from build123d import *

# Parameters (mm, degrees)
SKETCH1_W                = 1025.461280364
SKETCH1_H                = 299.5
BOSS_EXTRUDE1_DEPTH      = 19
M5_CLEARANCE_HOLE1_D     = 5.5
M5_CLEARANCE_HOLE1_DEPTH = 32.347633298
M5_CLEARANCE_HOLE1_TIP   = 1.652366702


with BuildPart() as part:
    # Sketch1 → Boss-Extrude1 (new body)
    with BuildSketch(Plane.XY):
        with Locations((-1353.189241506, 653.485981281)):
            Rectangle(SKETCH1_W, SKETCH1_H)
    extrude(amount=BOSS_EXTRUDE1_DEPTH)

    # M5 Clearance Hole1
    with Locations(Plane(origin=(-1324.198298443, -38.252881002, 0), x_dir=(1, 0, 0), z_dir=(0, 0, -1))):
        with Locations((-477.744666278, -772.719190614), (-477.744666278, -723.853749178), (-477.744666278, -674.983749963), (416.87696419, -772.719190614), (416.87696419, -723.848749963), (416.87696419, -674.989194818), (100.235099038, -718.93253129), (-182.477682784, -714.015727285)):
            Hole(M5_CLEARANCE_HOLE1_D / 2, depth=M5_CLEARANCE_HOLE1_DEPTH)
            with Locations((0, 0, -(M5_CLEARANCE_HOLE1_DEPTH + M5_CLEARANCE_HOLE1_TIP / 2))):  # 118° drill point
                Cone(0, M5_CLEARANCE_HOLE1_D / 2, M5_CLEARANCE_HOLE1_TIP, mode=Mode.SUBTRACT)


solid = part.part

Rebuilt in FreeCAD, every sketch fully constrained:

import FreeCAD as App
import Part
import Sketcher
from FreeCAD import Vector


def add_polygon(sketch, points):
    """Adds a closed chain of lines whose ends are joined by coincident constraints."""
    first, n = sketch.GeometryCount, len(points)
    for a, b in zip(points, points[1:] + points[:1]):
        sketch.addGeometry(Part.LineSegment(App.Vector(*a, 0), App.Vector(*b, 0)), False)
    for i in range(n):
        sketch.addConstraint(Sketcher.Constraint("Coincident", first + i, 2, first + (i + 1) % n, 1))

doc = App.newDocument("Part")
body = doc.addObject("PartDesign::Body", "Body")

sketch1 = body.newObject("Sketcher::SketchObject", "Sketch")
sketch1.AttachmentSupport = (doc.getObject("XY_Plane"), [""])
sketch1.MapMode = "FlatFace"
add_polygon(sketch1, [(-1866, 803), (-1866, 504), (-840, 504), (-840, 803)])
sketch1.addConstraint(Sketcher.Constraint("Vertical", 0))
sketch1.addConstraint(Sketcher.Constraint("Horizontal", 1))
sketch1.addConstraint(Sketcher.Constraint("Vertical", 2))
sketch1.addConstraint(Sketcher.Constraint("Horizontal", 3))
sketch1.addConstraint(Sketcher.Constraint("DistanceY", 0, 2, 0, 1, 299.5))
sketch1.addConstraint(Sketcher.Constraint("DistanceX", 1, 1, 1, 2, 1025.46128))
sketch1.addConstraint(Sketcher.Constraint("DistanceX", 1, 2, -1, 1, 840.458601))
sketch1.addConstraint(Sketcher.Constraint("DistanceY", -1, 1, 0, 2, 503.735981))
pad1 = body.newObject("PartDesign::Pad", "Pad")
pad1.Profile = sketch1
pad1.Length = 19

sketch2 = body.newObject("Sketcher::SketchObject", "Sketch001")
sketch2.AttachmentSupport = (doc.getObject("XY_Plane"), [""])
sketch2.MapMode = "FlatFace"
sketch2.addGeometry(Part.Circle(Vector(-1801.9, 734.5, 0), Vector(0, 0, 1), 2.8), False)
sketch2.addGeometry(Part.Circle(Vector(-1801.9, 685.6, 0), Vector(0, 0, 1), 2.8), False)
sketch2.addGeometry(Part.Circle(Vector(-1801.9, 636.7, 0), Vector(0, 0, 1), 2.8), False)
sketch2.addGeometry(Part.Circle(Vector(-907.3, 734.5, 0), Vector(0, 0, 1), 2.8), False)
sketch2.addGeometry(Part.Circle(Vector(-907.3, 685.6, 0), Vector(0, 0, 1), 2.8), False)
sketch2.addGeometry(Part.Circle(Vector(-907.3, 636.7, 0), Vector(0, 0, 1), 2.8), False)
sketch2.addGeometry(Part.Circle(Vector(-1224, 680.7, 0), Vector(0, 0, 1), 2.8), False)
sketch2.addGeometry(Part.Circle(Vector(-1506.7, 675.8, 0), Vector(0, 0, 1), 2.8), False)
sketch2.addConstraint(Sketcher.Constraint("Equal", 0, 1))
sketch2.addConstraint(Sketcher.Constraint("Equal", 1, 2))
sketch2.addConstraint(Sketcher.Constraint("Equal", 2, 3))
sketch2.addConstraint(Sketcher.Constraint("Equal", 3, 4))
sketch2.addConstraint(Sketcher.Constraint("Equal", 4, 5))
sketch2.addConstraint(Sketcher.Constraint("Equal", 5, 6))
sketch2.addConstraint(Sketcher.Constraint("Equal", 6, 7))
sketch2.addConstraint(Sketcher.Constraint("Horizontal", 0, 3, 3, 3))
sketch2.addConstraint(Sketcher.Constraint("Vertical", 0, 3, 1, 3))
sketch2.addConstraint(Sketcher.Constraint("Vertical", 1, 3, 2, 3))
sketch2.addConstraint(Sketcher.Constraint("Vertical", 3, 3, 4, 3))
sketch2.addConstraint(Sketcher.Constraint("Vertical", 4, 3, 5, 3))
sketch2.addConstraint(Sketcher.Constraint("Diameter", 0, 5.5))
sketch2.addConstraint(Sketcher.Constraint("DistanceY", 2, 3, 1, 3, 48.869999))
sketch2.addConstraint(Sketcher.Constraint("DistanceY", 4, 3, 1, 3, 0.004999))
sketch2.addConstraint(Sketcher.Constraint("DistanceX", 6, 3, -1, 1, 1223.963199))
sketch2.addConstraint(Sketcher.Constraint("DistanceY", -1, 1, 0, 3, 734.46631))
sketch2.addConstraint(Sketcher.Constraint("DistanceY", -1, 1, 1, 3, 685.600868))
sketch2.addConstraint(Sketcher.Constraint("DistanceY", -1, 1, 6, 3, 680.67965))
sketch2.addConstraint(Sketcher.Constraint("DistanceX", 7, 3, -1, 1, 1506.675981))
sketch2.addConstraint(Sketcher.Constraint("DistanceX", 0, 3, 3, 3, 894.62163))
sketch2.addConstraint(Sketcher.Constraint("DistanceY", 7, 3, 1, 3, 9.838022))
sketch2.addConstraint(Sketcher.Constraint("DistanceX", 0, 3, -1, 1, 1801.942965))
sketch2.addConstraint(Sketcher.Constraint("DistanceY", -1, 1, 5, 3, 636.736314))
doc.recompute()
hole = body.newObject("PartDesign::Hole", "Hole")
hole.Profile = sketch2
hole.ThreadType = "None"
hole.Diameter = 5.5
hole.DepthType = "Dimension"
hole.Depth = 32.347633
hole.DrillPoint = "Angled"
hole.DrillPointAngle = 118
hole.Reversed = True

doc.recompute()
